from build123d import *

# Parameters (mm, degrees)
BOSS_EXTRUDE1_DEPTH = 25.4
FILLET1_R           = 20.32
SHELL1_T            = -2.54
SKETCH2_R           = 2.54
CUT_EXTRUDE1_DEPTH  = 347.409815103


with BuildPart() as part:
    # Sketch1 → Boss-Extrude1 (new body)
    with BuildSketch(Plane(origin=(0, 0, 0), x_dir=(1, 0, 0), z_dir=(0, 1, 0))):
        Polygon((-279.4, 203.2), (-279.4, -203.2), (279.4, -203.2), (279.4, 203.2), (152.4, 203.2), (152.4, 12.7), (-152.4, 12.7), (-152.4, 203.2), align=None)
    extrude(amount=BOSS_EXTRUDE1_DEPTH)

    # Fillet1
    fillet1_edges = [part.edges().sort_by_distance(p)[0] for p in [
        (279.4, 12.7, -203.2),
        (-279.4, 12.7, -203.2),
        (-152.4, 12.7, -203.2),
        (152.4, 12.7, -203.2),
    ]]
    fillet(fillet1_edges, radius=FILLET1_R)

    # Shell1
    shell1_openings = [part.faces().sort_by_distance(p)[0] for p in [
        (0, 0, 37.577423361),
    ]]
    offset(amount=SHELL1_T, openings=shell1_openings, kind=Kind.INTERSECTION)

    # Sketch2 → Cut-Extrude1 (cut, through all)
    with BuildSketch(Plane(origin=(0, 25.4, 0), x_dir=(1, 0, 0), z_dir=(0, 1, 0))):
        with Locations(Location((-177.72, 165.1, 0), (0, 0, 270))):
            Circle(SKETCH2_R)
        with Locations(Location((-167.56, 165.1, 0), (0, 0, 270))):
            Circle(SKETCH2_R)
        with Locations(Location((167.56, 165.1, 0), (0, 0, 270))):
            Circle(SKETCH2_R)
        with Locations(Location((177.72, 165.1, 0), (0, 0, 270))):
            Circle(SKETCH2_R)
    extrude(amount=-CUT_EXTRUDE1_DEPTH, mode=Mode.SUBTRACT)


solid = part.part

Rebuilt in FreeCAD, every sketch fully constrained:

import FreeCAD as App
import Part
import Sketcher
Q = App.Units.Quantity


def edges_at(feature, points):
    """Names of the edges that pass closest to the given points."""
    edges = feature.Shape.Edges
    near = lambda p: min(range(len(edges)), key=lambda i: edges[i].distToShape(Part.Vertex(*p))[0])
    return sorted({f"Edge{near(p) + 1}" for p in points})


def faces_at(feature, points):
    """Names of the faces that lie closest to the given points."""
    faces = feature.Shape.Faces
    near = lambda p: min(range(len(faces)), key=lambda i: faces[i].distToShape(Part.Vertex(*p))[0])
    return sorted({f"Face{near(p) + 1}" for p in points})


def add_polygon(sketch, points):
    """Adds a closed chain of lines whose ends are joined by coincident constraints."""
    first, n = sketch.GeometryCount, len(points)
    for a, b in zip(points, points[1:] + points[:1]):
        sketch.addGeometry(Part.LineSegment(App.Vector(*a, 0), App.Vector(*b, 0)), False)
    for i in range(n):
        sketch.addConstraint(Sketcher.Constraint("Coincident", first + i, 2, first + (i + 1) % n, 1))

doc = App.newDocument("Part")
body = doc.addObject("PartDesign::Body", "Body")

sketch1 = body.newObject("Sketcher::SketchObject", "Sketch")
sketch1.AttachmentSupport = (doc.getObject("XZ_Plane"), [""])
sketch1.MapMode = "FlatFace"
add_polygon(sketch1, [(-279, -203), (-279, 203), (279, 203), (279, -203), (152, -203), (152, -13), (-152, -13), (-152, -203)])
sketch1.addConstraint(Sketcher.Constraint("Vertical", 0))
sketch1.addConstraint(Sketcher.Constraint("Horizontal", 1))
sketch1.addConstraint(Sketcher.Constraint("Vertical", 2))
sketch1.addConstraint(Sketcher.Constraint("Horizontal", 3))
sketch1.addConstraint(Sketcher.Constraint("Vertical", 4))
sketch1.addConstraint(Sketcher.Constraint("Horizontal", 5))
sketch1.addConstraint(Sketcher.Constraint("Vertical", 6))
sketch1.addConstraint(Sketcher.Constraint("Horizontal", 7))
sketch1.addConstraint(Sketcher.Constraint("Symmetric", 0, 2, 2, 2, -1, 1))
sketch1.addConstraint(Sketcher.Constraint("Symmetric", 3, 2, 6, 2, -2))
sketch1.addConstraint(Sketcher.Constraint("DistanceX", 1, 1, 1, 2, Q("22 in")))
sketch1.addConstraint(Sketcher.Constraint("DistanceX", 3, 2, 3, 1, Q("5 in")))
sketch1.addConstraint(Sketcher.Constraint("DistanceY", 0, 1, 0, 2, Q("16 in")))
sketch1.addConstraint(Sketcher.Constraint("DistanceY", 4, 1, 4, 2, Q("7.5 in")))
pad1 = body.newObject("PartDesign::Pad", "Pad")
pad1.Profile = sketch1
pad1.Length = Q("1 in")
pad1.Reversed = True
doc.recompute()

fillet = body.newObject("PartDesign::Fillet", "Fillet")
fillet.Base = (pad1, edges_at(pad1, [
    (279.4, 12.7, -203.2),
    (-279.4, 12.7, -203.2),
    (-152.4, 12.7, -203.2),
    (152.4, 12.7, -203.2),
]))
fillet.Radius = Q("0.8 in")
doc.recompute()

thickness = body.newObject("PartDesign::Thickness", "Thickness")
thickness.Base = (fillet, faces_at(fillet, [(0, 0, 0)]))
thickness.Value = Q("0.1 in")
thickness.Reversed = True
thickness.Join = "Intersection"

sketch2 = body.newObject("Sketcher::SketchObject", "Sketch001")
sketch2.AttachmentSupport = (doc.getObject("XZ_Plane"), [""])
sketch2.MapMode = "FlatFace"
sketch2.AttachmentOffset = App.Placement(App.Vector(0, 0, -1 * 25.4), App.Rotation())
sketch2.addGeometry(Part.Circle(App.Vector(-177.7, -165.1, 0), App.Vector(0, 0, 1), 2.5), False)
sketch2.addGeometry(Part.Circle(App.Vector(-167.6, -165.1, 0), App.Vector(0, 0, 1), 2.5), False)
sketch2.addGeometry(Part.Circle(App.Vector(167.6, -165.1, 0), App.Vector(0, 0, 1), 2.5), False)
sketch2.addGeometry(Part.Circle(App.Vector(177.7, -165.1, 0), App.Vector(0, 0, 1), 2.5), False)
sketch2.addConstraint(Sketcher.Constraint("Equal", 0, 1))
sketch2.addConstraint(Sketcher.Constraint("Equal", 1, 2))
sketch2.addConstraint(Sketcher.Constraint("Equal", 2, 3))
sketch2.addConstraint(Sketcher.Constraint("Symmetric", 1, 3, 2, 3, -2))
sketch2.addConstraint(Sketcher.Constraint("Symmetric", 0, 3, 3, 3, -2))
sketch2.addConstraint(Sketcher.Constraint("Horizontal", 0, 3, 1, 3))
sketch2.addConstraint(Sketcher.Constraint("Diameter", 0, Q("0.2 in")))
sketch2.addConstraint(Sketcher.Constraint("DistanceY", 0, 3, -1, 1, Q("6.5 in")))
sketch2.addConstraint(Sketcher.Constraint("DistanceX", 0, 3, 1, 3, Q("0.4 in")))
sketch2.addConstraint(Sketcher.Constraint("DistanceX", 0, 3, -1, 1, Q("177.72 mm")))
pocket1 = body.newObject("PartDesign::Pocket", "Pocket")
pocket1.Profile = sketch2
pocket1.Type = "ThroughAll"
pocket1.Reversed = True

doc.recompute()
